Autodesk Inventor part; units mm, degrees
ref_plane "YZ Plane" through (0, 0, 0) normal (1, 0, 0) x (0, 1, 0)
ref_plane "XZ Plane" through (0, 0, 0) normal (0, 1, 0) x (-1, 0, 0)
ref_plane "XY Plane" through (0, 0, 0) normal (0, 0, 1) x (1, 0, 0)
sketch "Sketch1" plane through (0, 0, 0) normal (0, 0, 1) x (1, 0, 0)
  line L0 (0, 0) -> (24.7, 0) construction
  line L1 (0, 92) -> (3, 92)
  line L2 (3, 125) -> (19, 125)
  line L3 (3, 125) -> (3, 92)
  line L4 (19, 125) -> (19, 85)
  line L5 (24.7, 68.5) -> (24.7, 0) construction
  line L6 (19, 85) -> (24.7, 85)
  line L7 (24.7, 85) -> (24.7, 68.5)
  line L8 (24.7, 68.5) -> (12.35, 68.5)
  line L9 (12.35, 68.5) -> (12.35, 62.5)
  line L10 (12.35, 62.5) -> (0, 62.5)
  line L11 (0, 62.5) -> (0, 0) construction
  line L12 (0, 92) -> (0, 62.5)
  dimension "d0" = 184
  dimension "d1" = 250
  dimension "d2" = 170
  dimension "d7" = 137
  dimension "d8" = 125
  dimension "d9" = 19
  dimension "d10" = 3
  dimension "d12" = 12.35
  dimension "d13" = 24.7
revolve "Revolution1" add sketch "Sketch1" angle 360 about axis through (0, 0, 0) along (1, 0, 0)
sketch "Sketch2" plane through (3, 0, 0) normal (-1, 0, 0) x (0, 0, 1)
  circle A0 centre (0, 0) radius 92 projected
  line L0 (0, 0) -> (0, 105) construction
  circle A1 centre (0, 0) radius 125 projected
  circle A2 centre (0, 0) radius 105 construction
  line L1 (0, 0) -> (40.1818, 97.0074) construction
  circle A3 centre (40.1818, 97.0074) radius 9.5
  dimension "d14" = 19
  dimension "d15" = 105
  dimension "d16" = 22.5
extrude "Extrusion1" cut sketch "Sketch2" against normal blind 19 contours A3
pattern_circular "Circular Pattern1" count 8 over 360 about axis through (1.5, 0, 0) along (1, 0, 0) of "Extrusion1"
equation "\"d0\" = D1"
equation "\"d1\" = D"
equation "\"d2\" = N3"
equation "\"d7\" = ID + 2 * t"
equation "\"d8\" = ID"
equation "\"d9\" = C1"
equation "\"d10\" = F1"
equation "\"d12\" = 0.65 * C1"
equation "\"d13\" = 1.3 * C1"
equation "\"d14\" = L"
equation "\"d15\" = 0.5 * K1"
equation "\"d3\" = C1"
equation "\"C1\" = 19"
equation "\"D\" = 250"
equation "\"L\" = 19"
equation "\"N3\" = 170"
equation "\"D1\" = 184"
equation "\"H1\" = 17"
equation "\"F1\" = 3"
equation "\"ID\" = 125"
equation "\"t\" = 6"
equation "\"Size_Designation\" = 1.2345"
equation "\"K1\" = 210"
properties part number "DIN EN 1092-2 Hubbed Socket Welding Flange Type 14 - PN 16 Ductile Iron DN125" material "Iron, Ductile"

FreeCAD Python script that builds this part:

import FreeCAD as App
import Part
import Sketcher
from FreeCAD import Vector


def add_polygon(sketch, points):
    """Adds a closed chain of lines whose ends are joined by coincident constraints."""
    first, n = sketch.GeometryCount, len(points)
    for a, b in zip(points, points[1:] + points[:1]):
        sketch.addGeometry(Part.LineSegment(App.Vector(*a, 0), App.Vector(*b, 0)), False)
    for i in range(n):
        sketch.addConstraint(Sketcher.Constraint("Coincident", first + i, 2, first + (i + 1) % n, 1))

doc = App.newDocument("Part")
body = doc.addObject("PartDesign::Body", "Body")

sketch1 = body.newObject("Sketcher::SketchObject", "Sketch")
sketch1.AttachmentSupport = (doc.getObject("XY_Plane"), [""])
sketch1.MapMode = "FlatFace"
add_polygon(sketch1, [(3, 92), (0, 92), (0, 62.5), (12.3, 62.5), (12.3, 68.5), (24.7, 68.5), (24.7, 85), (19, 85), (19, 125), (3, 125)])
sketch1.addConstraint([
    Sketcher.Constraint("Horizontal", 0),
    Sketcher.Constraint("Vertical", 1),
    Sketcher.Constraint("Horizontal", 2),
    Sketcher.Constraint("Vertical", 3),
    Sketcher.Constraint("Horizontal", 4),
    Sketcher.Constraint("Vertical", 5),
    Sketcher.Constraint("Horizontal", 6),
    Sketcher.Constraint("Vertical", 7),
    Sketcher.Constraint("Horizontal", 8),
    Sketcher.Constraint("Vertical", 9),
    Sketcher.Constraint("PointOnObject", 0, 2, -2),
    Sketcher.Constraint("Equal", 2, 4),
    Sketcher.Constraint("DistanceX", 0, 2, 0, 1, 3.0),
    Sketcher.Constraint("DistanceX", -1, 1, 6, 2, 19.0),
    Sketcher.Constraint("DistanceY", -1, 1, 7, 2, 125.0),
    Sketcher.Constraint("DistanceX", 2, 1, 2, 2, 12.35),
    Sketcher.Constraint("DistanceY", 3, 1, 3, 2, 6.0),
    Sketcher.Constraint("DistanceY", 7, 1, 7, 2, 40.0),
    Sketcher.Constraint("DistanceY", 9, 2, 9, 1, 33.0),
    Sketcher.Constraint("DistanceY", 1, 2, 1, 1, 29.5),
])
revolution = body.newObject("PartDesign::Revolution", "Revolution")
revolution.Profile = sketch1
revolution.ReferenceAxis = (sketch1, ["H_Axis"])
revolution.Angle = 360

sketch2 = body.newObject("Sketcher::SketchObject", "Sketch001")
sketch2.AttachmentSupport = (doc.getObject("YZ_Plane"), [""])
sketch2.MapMode = "FlatFace"
sketch2.AttachmentOffset = App.Placement(Vector(0, 0, 3), App.Rotation())
sketch2.addGeometry(Part.Circle(Vector(97, 40, 0), Vector(0, 0, 1), 10), False)
sketch2.addConstraint([
    Sketcher.Constraint("Diameter", 0, 19.0),
    Sketcher.Constraint("DistanceX", -1, 1, 0, 3, 97.0074),
    Sketcher.Constraint("DistanceY", -1, 1, 0, 3, 40.1818),
])
pocket1 = body.newObject("PartDesign::Pocket", "Pocket")
pocket1.Profile = sketch2
pocket1.Length = 19
pocket1.Reversed = True
doc.recompute()

polarpattern = body.newObject("PartDesign::PolarPattern", "PolarPattern")
polarpattern.Originals = [pocket1]
polarpattern.Axis = (doc.getObject("X_Axis"), [""])
polarpattern.Angle = 360
polarpattern.Occurrences = 8
body.Tip = polarpattern

doc.recompute()
